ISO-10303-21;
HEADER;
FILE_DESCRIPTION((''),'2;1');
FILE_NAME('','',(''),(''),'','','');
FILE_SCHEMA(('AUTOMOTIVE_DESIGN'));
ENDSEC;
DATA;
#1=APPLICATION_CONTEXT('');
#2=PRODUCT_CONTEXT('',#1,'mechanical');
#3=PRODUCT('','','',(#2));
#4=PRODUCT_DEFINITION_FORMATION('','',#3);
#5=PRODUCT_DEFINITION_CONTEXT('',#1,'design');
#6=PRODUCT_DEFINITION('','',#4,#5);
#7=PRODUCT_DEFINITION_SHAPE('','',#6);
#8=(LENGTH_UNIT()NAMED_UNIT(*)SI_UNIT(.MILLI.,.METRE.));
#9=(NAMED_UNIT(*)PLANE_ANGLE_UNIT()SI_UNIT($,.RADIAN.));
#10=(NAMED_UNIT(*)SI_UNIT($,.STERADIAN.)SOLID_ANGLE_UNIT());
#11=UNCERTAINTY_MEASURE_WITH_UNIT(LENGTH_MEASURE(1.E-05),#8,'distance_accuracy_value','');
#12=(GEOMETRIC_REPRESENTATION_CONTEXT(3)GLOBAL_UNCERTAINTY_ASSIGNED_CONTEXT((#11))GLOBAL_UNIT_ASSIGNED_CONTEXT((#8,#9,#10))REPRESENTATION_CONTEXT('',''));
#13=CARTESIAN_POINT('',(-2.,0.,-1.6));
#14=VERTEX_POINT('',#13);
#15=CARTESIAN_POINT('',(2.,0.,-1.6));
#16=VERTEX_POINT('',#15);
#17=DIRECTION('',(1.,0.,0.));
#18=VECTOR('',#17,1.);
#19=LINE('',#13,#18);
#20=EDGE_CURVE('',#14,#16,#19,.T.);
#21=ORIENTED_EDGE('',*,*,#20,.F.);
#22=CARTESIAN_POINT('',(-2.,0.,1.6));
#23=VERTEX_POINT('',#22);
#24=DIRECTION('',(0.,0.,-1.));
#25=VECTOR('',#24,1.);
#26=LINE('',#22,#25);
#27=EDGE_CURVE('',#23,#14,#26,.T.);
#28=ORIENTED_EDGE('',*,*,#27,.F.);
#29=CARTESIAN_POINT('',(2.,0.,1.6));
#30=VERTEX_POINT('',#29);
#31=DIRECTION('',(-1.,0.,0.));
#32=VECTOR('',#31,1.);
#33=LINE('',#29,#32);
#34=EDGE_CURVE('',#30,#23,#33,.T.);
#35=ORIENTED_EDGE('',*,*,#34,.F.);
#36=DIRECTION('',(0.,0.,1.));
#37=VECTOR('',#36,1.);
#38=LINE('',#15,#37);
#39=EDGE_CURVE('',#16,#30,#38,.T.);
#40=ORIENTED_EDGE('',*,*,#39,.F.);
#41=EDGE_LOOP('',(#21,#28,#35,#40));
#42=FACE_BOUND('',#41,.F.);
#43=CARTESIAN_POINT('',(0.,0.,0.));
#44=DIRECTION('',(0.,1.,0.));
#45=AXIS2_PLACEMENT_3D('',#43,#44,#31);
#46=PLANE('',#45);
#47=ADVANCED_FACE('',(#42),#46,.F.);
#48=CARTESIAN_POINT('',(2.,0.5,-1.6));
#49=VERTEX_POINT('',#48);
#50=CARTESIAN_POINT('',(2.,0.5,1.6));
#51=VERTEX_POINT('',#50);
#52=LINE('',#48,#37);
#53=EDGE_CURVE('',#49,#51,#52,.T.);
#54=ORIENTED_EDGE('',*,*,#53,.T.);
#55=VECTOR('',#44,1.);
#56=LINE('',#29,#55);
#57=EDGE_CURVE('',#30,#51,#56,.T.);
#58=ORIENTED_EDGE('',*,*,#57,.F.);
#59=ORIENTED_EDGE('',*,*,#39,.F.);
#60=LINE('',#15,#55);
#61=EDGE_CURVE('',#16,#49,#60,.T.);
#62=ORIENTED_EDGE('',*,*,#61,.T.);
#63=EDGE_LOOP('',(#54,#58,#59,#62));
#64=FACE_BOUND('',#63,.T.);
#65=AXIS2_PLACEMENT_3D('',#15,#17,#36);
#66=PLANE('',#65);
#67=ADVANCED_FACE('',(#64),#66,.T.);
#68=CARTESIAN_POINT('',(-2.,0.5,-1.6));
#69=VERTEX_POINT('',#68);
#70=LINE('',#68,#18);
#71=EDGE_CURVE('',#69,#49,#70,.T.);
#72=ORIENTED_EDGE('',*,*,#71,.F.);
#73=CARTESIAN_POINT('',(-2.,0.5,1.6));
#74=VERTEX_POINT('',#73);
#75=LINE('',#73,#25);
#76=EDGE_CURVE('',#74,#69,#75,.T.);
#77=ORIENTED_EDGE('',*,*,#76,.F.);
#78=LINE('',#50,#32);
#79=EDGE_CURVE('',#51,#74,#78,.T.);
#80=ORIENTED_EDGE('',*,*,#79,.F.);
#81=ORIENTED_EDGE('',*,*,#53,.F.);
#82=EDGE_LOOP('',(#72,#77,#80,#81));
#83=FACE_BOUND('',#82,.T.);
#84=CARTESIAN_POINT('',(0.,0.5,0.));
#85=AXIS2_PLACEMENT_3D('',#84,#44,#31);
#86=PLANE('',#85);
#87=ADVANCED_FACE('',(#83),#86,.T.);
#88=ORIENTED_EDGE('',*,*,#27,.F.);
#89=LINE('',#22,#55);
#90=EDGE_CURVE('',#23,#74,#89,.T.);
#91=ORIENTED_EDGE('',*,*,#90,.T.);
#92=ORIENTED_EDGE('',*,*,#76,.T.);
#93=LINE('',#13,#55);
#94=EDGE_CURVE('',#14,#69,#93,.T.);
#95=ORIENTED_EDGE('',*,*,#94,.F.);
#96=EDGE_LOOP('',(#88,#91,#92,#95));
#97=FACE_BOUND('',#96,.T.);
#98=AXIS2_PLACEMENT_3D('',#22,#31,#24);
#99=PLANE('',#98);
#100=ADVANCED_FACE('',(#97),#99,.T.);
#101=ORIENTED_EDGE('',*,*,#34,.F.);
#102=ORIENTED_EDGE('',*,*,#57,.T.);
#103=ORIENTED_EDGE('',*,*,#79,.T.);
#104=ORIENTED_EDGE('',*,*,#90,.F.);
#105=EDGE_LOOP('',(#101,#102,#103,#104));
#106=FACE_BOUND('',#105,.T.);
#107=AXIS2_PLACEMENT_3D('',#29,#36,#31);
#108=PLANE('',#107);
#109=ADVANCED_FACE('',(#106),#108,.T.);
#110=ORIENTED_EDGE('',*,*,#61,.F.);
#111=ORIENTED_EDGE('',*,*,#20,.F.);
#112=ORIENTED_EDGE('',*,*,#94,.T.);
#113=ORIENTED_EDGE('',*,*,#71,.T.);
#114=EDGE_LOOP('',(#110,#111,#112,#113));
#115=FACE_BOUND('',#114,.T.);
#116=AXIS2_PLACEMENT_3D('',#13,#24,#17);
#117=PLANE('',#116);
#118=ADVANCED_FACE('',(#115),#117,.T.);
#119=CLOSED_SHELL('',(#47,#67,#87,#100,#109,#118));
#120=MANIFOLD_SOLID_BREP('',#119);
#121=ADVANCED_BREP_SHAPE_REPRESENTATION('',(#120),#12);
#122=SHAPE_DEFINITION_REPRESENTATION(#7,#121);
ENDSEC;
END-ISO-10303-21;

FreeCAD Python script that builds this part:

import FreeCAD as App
import Part
import Sketcher
from FreeCAD import Vector


def add_polygon(sketch, points):
    """Adds a closed chain of lines whose ends are joined by coincident constraints."""
    first, n = sketch.GeometryCount, len(points)
    for a, b in zip(points, points[1:] + points[:1]):
        sketch.addGeometry(Part.LineSegment(App.Vector(*a, 0), App.Vector(*b, 0)), False)
    for i in range(n):
        sketch.addConstraint(Sketcher.Constraint("Coincident", first + i, 2, first + (i + 1) % n, 1))

doc = App.newDocument("Part")
body = doc.addObject("PartDesign::Body", "Body")

sketch1 = doc.addObject("Sketcher::SketchObject", "Sketch")
body.addObject(sketch1)
sketch1.AttachmentSupport = (doc.XZ_Plane, [""])
sketch1.MapMode = "FlatFace"
add_polygon(sketch1, [(-2, 1.6), (2, 1.6), (2, -1.6), (-2, -1.6)])
sketch1.addConstraint([
    Sketcher.Constraint("Horizontal", 0),
    Sketcher.Constraint("Vertical", 1),
    Sketcher.Constraint("Horizontal", 2),
    Sketcher.Constraint("Vertical", 3),
    Sketcher.Constraint("Symmetric", 0, 2, 2, 2, -1, 1),
    Sketcher.Constraint("DistanceX", 0, 1, 0, 2, 4.0),
    Sketcher.Constraint("DistanceY", 1, 2, 1, 1, 3.2),
])
pad1 = doc.addObject("PartDesign::Pad", "Pad")
body.addObject(pad1)
pad1.Profile = sketch1
pad1.Length = 0.5
pad1.Reversed = True

doc.recompute()
